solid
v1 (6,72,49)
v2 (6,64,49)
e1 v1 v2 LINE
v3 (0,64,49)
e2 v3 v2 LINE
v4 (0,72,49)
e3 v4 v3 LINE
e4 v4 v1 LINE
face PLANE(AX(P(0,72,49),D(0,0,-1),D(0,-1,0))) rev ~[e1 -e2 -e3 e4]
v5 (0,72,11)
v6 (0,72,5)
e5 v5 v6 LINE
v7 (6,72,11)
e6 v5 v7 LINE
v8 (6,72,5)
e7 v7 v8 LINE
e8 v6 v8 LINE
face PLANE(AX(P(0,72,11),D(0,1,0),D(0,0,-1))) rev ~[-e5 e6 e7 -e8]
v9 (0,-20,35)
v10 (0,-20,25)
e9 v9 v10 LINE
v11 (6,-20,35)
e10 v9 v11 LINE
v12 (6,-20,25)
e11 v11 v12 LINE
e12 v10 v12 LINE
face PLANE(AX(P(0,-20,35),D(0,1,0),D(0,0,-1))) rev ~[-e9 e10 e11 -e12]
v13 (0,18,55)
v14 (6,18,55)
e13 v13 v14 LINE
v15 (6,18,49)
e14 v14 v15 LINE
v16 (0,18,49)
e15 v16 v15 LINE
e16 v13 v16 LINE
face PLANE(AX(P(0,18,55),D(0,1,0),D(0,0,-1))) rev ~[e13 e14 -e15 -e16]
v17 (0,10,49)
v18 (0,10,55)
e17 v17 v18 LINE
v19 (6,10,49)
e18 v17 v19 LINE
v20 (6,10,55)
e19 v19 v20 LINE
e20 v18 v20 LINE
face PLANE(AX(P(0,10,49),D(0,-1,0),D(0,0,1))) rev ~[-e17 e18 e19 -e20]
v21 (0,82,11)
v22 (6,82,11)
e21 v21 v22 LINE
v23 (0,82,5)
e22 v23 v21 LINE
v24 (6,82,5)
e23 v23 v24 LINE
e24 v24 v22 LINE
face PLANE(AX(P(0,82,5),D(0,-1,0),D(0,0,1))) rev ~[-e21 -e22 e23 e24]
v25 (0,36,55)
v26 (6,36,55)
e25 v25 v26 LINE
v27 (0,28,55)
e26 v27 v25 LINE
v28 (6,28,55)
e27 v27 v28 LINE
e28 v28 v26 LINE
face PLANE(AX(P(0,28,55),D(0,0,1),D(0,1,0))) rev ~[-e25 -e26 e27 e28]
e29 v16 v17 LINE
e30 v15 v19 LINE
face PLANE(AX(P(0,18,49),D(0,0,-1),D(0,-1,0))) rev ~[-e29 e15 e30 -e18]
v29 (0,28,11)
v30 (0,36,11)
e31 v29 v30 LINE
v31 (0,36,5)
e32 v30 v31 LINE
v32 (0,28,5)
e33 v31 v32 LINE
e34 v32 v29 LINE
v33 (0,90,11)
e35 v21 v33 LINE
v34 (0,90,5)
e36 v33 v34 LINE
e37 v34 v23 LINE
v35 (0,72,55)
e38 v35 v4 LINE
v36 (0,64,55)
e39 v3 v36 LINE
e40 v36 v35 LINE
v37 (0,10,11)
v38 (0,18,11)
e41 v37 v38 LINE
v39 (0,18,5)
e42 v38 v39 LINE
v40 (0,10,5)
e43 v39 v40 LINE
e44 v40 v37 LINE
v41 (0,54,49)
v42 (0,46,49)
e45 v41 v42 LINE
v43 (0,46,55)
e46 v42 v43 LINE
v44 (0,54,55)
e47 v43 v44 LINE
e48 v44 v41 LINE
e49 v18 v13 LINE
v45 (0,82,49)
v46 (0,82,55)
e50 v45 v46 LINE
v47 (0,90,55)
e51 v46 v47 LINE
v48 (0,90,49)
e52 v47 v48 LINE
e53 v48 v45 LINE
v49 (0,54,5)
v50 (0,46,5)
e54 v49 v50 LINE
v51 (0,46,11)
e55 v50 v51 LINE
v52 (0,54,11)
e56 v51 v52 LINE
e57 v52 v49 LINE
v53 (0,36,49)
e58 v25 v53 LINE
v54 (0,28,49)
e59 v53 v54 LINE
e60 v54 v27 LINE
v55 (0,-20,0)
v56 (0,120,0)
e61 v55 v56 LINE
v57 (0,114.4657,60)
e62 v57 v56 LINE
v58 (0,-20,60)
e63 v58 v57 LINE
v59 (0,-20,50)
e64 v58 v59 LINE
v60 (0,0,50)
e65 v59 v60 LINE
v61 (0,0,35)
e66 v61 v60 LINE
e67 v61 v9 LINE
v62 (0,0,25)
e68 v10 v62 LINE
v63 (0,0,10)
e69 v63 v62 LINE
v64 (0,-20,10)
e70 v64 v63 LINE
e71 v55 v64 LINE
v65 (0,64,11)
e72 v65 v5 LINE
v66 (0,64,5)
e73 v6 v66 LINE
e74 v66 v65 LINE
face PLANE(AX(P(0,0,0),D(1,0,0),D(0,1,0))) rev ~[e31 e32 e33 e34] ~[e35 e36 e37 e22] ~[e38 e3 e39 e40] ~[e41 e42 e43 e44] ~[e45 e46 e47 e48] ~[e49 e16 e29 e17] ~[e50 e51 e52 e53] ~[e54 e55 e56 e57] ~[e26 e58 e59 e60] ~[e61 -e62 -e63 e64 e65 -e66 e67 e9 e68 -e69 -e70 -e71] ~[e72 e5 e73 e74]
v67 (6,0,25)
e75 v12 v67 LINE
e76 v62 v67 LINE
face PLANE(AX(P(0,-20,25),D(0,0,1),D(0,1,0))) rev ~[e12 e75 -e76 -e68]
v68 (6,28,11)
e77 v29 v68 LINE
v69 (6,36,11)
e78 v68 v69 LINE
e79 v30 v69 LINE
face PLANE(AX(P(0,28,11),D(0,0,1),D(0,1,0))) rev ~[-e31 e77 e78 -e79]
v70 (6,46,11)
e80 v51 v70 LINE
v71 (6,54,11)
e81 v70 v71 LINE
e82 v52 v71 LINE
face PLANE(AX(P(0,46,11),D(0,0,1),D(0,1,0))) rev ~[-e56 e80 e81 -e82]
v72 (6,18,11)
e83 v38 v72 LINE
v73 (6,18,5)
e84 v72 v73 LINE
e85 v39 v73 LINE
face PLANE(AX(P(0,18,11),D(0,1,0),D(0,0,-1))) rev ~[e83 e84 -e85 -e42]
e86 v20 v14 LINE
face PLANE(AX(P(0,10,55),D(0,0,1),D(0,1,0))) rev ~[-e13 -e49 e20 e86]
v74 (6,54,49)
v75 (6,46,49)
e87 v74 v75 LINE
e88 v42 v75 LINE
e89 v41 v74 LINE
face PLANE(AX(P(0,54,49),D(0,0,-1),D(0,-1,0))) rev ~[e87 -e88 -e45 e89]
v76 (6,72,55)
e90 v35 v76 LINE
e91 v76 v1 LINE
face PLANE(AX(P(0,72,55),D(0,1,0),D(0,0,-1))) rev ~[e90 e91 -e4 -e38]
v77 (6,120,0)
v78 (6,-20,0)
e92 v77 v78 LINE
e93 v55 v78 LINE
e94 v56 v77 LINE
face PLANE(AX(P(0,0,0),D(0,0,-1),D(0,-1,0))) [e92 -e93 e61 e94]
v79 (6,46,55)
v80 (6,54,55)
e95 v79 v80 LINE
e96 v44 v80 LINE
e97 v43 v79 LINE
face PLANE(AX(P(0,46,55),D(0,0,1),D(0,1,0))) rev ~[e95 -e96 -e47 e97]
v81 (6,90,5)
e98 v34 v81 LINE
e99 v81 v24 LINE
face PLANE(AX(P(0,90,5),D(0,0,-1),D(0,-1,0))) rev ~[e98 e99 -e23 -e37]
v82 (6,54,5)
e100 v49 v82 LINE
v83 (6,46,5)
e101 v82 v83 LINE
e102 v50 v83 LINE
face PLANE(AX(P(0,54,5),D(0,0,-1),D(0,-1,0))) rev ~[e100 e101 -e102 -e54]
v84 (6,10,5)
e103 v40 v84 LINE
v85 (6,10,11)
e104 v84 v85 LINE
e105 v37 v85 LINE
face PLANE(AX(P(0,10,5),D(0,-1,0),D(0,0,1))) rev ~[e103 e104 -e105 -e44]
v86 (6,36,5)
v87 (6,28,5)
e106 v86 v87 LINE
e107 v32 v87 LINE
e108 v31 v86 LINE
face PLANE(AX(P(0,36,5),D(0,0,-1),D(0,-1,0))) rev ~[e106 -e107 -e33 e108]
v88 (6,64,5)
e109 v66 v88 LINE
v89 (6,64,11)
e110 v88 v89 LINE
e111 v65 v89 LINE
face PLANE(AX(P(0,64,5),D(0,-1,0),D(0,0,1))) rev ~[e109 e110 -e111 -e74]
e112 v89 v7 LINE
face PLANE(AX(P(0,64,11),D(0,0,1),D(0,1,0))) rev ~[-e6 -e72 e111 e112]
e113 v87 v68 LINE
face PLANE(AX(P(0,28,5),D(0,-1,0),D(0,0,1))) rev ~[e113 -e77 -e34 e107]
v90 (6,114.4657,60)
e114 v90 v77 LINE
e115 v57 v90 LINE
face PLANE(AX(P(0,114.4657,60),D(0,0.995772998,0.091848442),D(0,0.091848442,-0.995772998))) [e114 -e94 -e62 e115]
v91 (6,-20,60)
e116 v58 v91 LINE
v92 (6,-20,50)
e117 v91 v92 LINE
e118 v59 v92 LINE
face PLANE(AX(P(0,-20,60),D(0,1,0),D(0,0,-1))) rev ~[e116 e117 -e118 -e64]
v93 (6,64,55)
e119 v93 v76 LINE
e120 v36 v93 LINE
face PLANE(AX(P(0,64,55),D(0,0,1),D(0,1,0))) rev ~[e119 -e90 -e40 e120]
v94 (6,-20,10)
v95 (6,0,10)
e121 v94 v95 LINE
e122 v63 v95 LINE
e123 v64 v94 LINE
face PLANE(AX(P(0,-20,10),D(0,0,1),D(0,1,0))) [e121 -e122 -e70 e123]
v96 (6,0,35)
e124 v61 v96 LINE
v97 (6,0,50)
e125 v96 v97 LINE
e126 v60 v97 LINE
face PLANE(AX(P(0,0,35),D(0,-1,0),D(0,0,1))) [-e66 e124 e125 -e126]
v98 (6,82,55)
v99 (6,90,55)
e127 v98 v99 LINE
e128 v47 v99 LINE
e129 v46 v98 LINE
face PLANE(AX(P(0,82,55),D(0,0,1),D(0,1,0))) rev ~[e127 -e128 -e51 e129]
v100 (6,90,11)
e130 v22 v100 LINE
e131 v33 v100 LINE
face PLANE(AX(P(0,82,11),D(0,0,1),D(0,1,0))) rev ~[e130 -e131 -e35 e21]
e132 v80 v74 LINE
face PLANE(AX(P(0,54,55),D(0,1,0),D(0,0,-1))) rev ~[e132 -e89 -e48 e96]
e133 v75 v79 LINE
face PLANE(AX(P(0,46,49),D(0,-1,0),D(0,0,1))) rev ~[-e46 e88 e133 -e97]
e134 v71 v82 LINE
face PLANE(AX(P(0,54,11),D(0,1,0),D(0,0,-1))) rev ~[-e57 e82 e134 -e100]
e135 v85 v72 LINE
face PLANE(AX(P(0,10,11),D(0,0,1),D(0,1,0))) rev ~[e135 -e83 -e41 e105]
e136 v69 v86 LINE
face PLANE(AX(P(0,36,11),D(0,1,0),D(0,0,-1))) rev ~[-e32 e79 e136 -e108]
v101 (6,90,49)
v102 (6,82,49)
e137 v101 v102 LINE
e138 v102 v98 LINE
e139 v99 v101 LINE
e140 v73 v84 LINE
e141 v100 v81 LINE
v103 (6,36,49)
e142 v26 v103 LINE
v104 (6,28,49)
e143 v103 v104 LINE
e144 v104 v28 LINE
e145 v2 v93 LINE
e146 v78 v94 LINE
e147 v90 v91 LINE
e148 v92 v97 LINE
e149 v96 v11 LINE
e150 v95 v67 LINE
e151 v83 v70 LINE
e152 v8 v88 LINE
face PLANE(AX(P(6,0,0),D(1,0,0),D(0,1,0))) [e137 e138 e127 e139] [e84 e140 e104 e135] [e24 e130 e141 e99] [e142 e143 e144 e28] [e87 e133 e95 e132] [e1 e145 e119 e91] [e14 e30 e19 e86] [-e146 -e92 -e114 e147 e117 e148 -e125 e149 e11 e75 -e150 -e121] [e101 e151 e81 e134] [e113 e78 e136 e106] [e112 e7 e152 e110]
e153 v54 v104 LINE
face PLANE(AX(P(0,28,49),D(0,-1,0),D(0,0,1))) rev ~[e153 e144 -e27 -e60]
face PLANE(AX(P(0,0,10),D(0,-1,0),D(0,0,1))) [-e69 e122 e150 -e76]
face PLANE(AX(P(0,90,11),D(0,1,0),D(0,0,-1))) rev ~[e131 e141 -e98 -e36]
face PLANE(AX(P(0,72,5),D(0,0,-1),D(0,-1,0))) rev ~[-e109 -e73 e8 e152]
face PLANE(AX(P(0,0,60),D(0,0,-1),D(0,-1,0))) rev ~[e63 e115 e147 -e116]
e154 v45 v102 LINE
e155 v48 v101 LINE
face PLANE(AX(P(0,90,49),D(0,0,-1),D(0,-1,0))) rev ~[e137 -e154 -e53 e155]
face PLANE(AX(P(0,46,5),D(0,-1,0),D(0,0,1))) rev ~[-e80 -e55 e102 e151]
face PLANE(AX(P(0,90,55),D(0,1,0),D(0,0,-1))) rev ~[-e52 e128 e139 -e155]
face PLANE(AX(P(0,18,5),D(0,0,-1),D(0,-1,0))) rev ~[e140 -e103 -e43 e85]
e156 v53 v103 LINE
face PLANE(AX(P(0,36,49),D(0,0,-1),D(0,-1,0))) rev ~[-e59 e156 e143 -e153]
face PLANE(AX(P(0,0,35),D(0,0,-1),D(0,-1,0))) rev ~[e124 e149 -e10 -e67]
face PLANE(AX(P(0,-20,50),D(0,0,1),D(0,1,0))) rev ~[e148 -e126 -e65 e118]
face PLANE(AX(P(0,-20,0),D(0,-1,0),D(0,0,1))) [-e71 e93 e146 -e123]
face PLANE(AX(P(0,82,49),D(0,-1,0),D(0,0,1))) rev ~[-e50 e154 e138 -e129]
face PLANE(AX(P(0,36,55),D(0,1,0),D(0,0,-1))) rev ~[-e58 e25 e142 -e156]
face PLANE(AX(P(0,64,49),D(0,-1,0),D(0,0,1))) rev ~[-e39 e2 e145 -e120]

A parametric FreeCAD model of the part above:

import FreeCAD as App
import Part
import Sketcher
Q = App.Units.Quantity


def add_polygon(sketch, points):
    """Adds a closed chain of lines whose ends are joined by coincident constraints."""
    first, n = sketch.GeometryCount, len(points)
    for a, b in zip(points, points[1:] + points[:1]):
        sketch.addGeometry(Part.LineSegment(App.Vector(*a, 0), App.Vector(*b, 0)), False)
    for i in range(n):
        sketch.addConstraint(Sketcher.Constraint("Coincident", first + i, 2, first + (i + 1) % n, 1))

doc = App.newDocument("Part")
body = doc.addObject("PartDesign::Body", "Body")

# Sketch on YZ plane
sketch1 = body.newObject("Sketcher::SketchObject", "Sketch")
sketch1.AttachmentSupport = (doc.getObject("YZ_Plane"), [""])
sketch1.MapMode = "FlatFace"
add_polygon(sketch1, [(-20, 0), (120, 0), (114.4657, 60), (-20, 60), (-20, 50), (0, 50), (0, 35), (-20, 35), (-20, 25), (0, 25), (0, 10), (-20, 10)])  # lines 0-11
sketch1.addConstraint(Sketcher.Constraint("Horizontal", 0))
sketch1.addConstraint(Sketcher.Constraint("Horizontal", 2))
sketch1.addConstraint(Sketcher.Constraint("Vertical", 3))
sketch1.addConstraint(Sketcher.Constraint("Horizontal", 4))
sketch1.addConstraint(Sketcher.Constraint("Vertical", 5))
sketch1.addConstraint(Sketcher.Constraint("Horizontal", 6))
sketch1.addConstraint(Sketcher.Constraint("Vertical", 7))
sketch1.addConstraint(Sketcher.Constraint("Horizontal", 8))
sketch1.addConstraint(Sketcher.Constraint("Vertical", 9))
sketch1.addConstraint(Sketcher.Constraint("Horizontal", 10))
sketch1.addConstraint(Sketcher.Constraint("Vertical", 11))
sketch1.addConstraint(Sketcher.Constraint("PointOnObject", 0, 2, -1))
sketch1.addConstraint(Sketcher.Constraint("PointOnObject", 4, 2, -2))
sketch1.addConstraint(Sketcher.Constraint("PointOnObject", 8, 2, -2))
sketch1.addConstraint(Sketcher.Constraint("Vertical", 3, 2, 6, 2))
sketch1.addConstraint(Sketcher.Constraint("Vertical", 7, 2, 10, 2))
sketch1.addConstraint(Sketcher.Constraint("Equal", 3, 7))
sketch1.addConstraint(Sketcher.Constraint("Equal", 5, 9))
sketch1.addConstraint(Sketcher.Constraint("Equal", 7, 11))
sketch1.addConstraint(Sketcher.Constraint("DistanceX", 4, 1, 4, 2, Q("20 mm")))
sketch1.addConstraint(Sketcher.Constraint("DistanceY", 3, 2, 3, 1, Q("10 mm")))
sketch1.addConstraint(Sketcher.Constraint("DistanceY", 5, 2, 5, 1, Q("15 mm")))
sketch1.addConstraint(Sketcher.Constraint("DistanceX", -1, 1, 0, 2, Q("120 mm")))
sketch1.addConstraint(Sketcher.Constraint("Angle", 1, Q("95.27 deg")))
pad1 = body.newObject("PartDesign::Pad", "Pad")
pad1.Profile = sketch1
pad1.Length = 6

# Sketch on YZ plane
sketch2 = body.newObject("Sketcher::SketchObject", "Sketch001")
sketch2.AttachmentSupport = (doc.getObject("YZ_Plane"), [""])
sketch2.MapMode = "FlatFace"
add_polygon(sketch2, [(82, 5), (90, 5), (90, 11), (82, 11)])  # lines 0-3
add_polygon(sketch2, [(64, 5), (72, 5), (72, 11), (64, 11)])  # lines 4-7
add_polygon(sketch2, [(46, 5), (54, 5), (54, 11), (46, 11)])  # lines 8-11
add_polygon(sketch2, [(28, 5), (36, 5), (36, 11), (28, 11)])  # lines 12-15
add_polygon(sketch2, [(10, 5), (18, 5), (18, 11), (10, 11)])  # lines 16-19
add_polygon(sketch2, [(82, 49), (90, 49), (90, 55), (82, 55)])  # lines 20-23
add_polygon(sketch2, [(72, 55), (64, 55), (64, 49), (72, 49)])  # lines 24-27
add_polygon(sketch2, [(54, 55), (46, 55), (46, 49), (54, 49)])  # lines 28-31
add_polygon(sketch2, [(36, 55), (28, 55), (28, 49), (36, 49)])  # lines 32-35
add_polygon(sketch2, [(10, 55), (10, 49), (18, 49), (18, 55)])  # lines 36-39
sketch2.addConstraint(Sketcher.Constraint("Horizontal", 0))
sketch2.addConstraint(Sketcher.Constraint("Vertical", 1))
sketch2.addConstraint(Sketcher.Constraint("Horizontal", 2))
sketch2.addConstraint(Sketcher.Constraint("Vertical", 3))
sketch2.addConstraint(Sketcher.Constraint("Horizontal", 4))
sketch2.addConstraint(Sketcher.Constraint("Vertical", 5))
sketch2.addConstraint(Sketcher.Constraint("Horizontal", 6))
sketch2.addConstraint(Sketcher.Constraint("Vertical", 7))
sketch2.addConstraint(Sketcher.Constraint("Horizontal", 8))
sketch2.addConstraint(Sketcher.Constraint("Vertical", 9))
sketch2.addConstraint(Sketcher.Constraint("Horizontal", 10))
sketch2.addConstraint(Sketcher.Constraint("Vertical", 11))
sketch2.addConstraint(Sketcher.Constraint("Horizontal", 12))
sketch2.addConstraint(Sketcher.Constraint("Vertical", 13))
sketch2.addConstraint(Sketcher.Constraint("Horizontal", 14))
sketch2.addConstraint(Sketcher.Constraint("Vertical", 15))
sketch2.addConstraint(Sketcher.Constraint("Horizontal", 16))
sketch2.addConstraint(Sketcher.Constraint("Vertical", 17))
sketch2.addConstraint(Sketcher.Constraint("Horizontal", 18))
sketch2.addConstraint(Sketcher.Constraint("Vertical", 19))
sketch2.addConstraint(Sketcher.Constraint("Horizontal", 20))
sketch2.addConstraint(Sketcher.Constraint("Vertical", 21))
sketch2.addConstraint(Sketcher.Constraint("Horizontal", 22))
sketch2.addConstraint(Sketcher.Constraint("Vertical", 23))
sketch2.addConstraint(Sketcher.Constraint("Horizontal", 24))
sketch2.addConstraint(Sketcher.Constraint("Vertical", 25))
sketch2.addConstraint(Sketcher.Constraint("Horizontal", 26))
sketch2.addConstraint(Sketcher.Constraint("Vertical", 27))
sketch2.addConstraint(Sketcher.Constraint("Horizontal", 28))
sketch2.addConstraint(Sketcher.Constraint("Vertical", 29))
sketch2.addConstraint(Sketcher.Constraint("Horizontal", 30))
sketch2.addConstraint(Sketcher.Constraint("Vertical", 31))
sketch2.addConstraint(Sketcher.Constraint("Horizontal", 32))
sketch2.addConstraint(Sketcher.Constraint("Vertical", 33))
sketch2.addConstraint(Sketcher.Constraint("Horizontal", 34))
sketch2.addConstraint(Sketcher.Constraint("Vertical", 35))
sketch2.addConstraint(Sketcher.Constraint("Vertical", 36))
sketch2.addConstraint(Sketcher.Constraint("Horizontal", 37))
sketch2.addConstraint(Sketcher.Constraint("Vertical", 38))
sketch2.addConstraint(Sketcher.Constraint("Horizontal", 39))
sketch2.addConstraint(Sketcher.Constraint("Horizontal", 3, 2, 4, 2))
sketch2.addConstraint(Sketcher.Constraint("Horizontal", 2, 2, 5, 2))
sketch2.addConstraint(Sketcher.Constraint("Horizontal", 7, 2, 8, 2))
sketch2.addConstraint(Sketcher.Constraint("Horizontal", 6, 2, 9, 2))
sketch2.addConstraint(Sketcher.Constraint("Horizontal", 11, 2, 12, 2))
sketch2.addConstraint(Sketcher.Constraint("Horizontal", 10, 2, 13, 2))
sketch2.addConstraint(Sketcher.Constraint("Horizontal", 15, 2, 16, 2))
sketch2.addConstraint(Sketcher.Constraint("Horizontal", 14, 2, 17, 2))
sketch2.addConstraint(Sketcher.Constraint("Horizontal", 22, 2, 24, 2))
sketch2.addConstraint(Sketcher.Constraint("Horizontal", 23, 2, 25, 2))
sketch2.addConstraint(Sketcher.Constraint("Horizontal", 27, 2, 28, 2))
sketch2.addConstraint(Sketcher.Constraint("Horizontal", 26, 2, 29, 2))
sketch2.addConstraint(Sketcher.Constraint("Horizontal", 31, 2, 32, 2))
sketch2.addConstraint(Sketcher.Constraint("Horizontal", 30, 2, 33, 2))
sketch2.addConstraint(Sketcher.Constraint("Horizontal", 34, 2, 36, 2))
sketch2.addConstraint(Sketcher.Constraint("Horizontal", 35, 2, 38, 2))
sketch2.addConstraint(Sketcher.Constraint("Vertical", 1, 2, 20, 2))
sketch2.addConstraint(Sketcher.Constraint("Vertical", 3, 2, 22, 2))
sketch2.addConstraint(Sketcher.Constraint("Vertical", 7, 2, 24, 2))
sketch2.addConstraint(Sketcher.Constraint("Vertical", 5, 2, 26, 2))
sketch2.addConstraint(Sketcher.Constraint("Vertical", 11, 2, 28, 2))
sketch2.addConstraint(Sketcher.Constraint("Vertical", 9, 2, 30, 2))
sketch2.addConstraint(Sketcher.Constraint("Vertical", 15, 2, 32, 2))
sketch2.addConstraint(Sketcher.Constraint("Vertical", 13, 2, 34, 2))
sketch2.addConstraint(Sketcher.Constraint("Vertical", 19, 2, 36, 2))
sketch2.addConstraint(Sketcher.Constraint("Vertical", 17, 2, 37, 2))
sketch2.addConstraint(Sketcher.Constraint("Equal", 2, 4))
sketch2.addConstraint(Sketcher.Constraint("Equal", 6, 8))
sketch2.addConstraint(Sketcher.Constraint("Equal", 10, 12))
sketch2.addConstraint(Sketcher.Constraint("Equal", 14, 16))
sketch2.addConstraint(Sketcher.Constraint("Equal", 19, 21))
sketch2.addConstraint(Sketcher.Constraint("DistanceX", 0, 1, 0, 2, Q("8 mm")))
sketch2.addConstraint(Sketcher.Constraint("DistanceY", 1, 1, 1, 2, Q("6 mm")))
sketch2.addConstraint(Sketcher.Constraint("DistanceX", -1, 1, 0, 2, Q("90 mm")))
sketch2.addConstraint(Sketcher.Constraint("DistanceY", -1, 1, 0, 2, Q("5 mm")))
sketch2.addConstraint(Sketcher.Constraint("DistanceX", -1, 1, 18, 2, Q("10 mm")))
sketch2.addConstraint(Sketcher.Constraint("DistanceX", 4, 2, 3, 2, Q("10 mm")))
sketch2.addConstraint(Sketcher.Constraint("DistanceX", 8, 2, 7, 2, Q("10 mm")))
sketch2.addConstraint(Sketcher.Constraint("DistanceX", 12, 2, 11, 2, Q("10 mm")))
sketch2.addConstraint(Sketcher.Constraint("DistanceY", -1, 1, 20, 2, Q("49 mm")))
pocket1 = body.newObject("PartDesign::Pocket", "Pocket")
pocket1.Profile = sketch2
pocket1.Length = 6
pocket1.Reversed = True

doc.recompute()
